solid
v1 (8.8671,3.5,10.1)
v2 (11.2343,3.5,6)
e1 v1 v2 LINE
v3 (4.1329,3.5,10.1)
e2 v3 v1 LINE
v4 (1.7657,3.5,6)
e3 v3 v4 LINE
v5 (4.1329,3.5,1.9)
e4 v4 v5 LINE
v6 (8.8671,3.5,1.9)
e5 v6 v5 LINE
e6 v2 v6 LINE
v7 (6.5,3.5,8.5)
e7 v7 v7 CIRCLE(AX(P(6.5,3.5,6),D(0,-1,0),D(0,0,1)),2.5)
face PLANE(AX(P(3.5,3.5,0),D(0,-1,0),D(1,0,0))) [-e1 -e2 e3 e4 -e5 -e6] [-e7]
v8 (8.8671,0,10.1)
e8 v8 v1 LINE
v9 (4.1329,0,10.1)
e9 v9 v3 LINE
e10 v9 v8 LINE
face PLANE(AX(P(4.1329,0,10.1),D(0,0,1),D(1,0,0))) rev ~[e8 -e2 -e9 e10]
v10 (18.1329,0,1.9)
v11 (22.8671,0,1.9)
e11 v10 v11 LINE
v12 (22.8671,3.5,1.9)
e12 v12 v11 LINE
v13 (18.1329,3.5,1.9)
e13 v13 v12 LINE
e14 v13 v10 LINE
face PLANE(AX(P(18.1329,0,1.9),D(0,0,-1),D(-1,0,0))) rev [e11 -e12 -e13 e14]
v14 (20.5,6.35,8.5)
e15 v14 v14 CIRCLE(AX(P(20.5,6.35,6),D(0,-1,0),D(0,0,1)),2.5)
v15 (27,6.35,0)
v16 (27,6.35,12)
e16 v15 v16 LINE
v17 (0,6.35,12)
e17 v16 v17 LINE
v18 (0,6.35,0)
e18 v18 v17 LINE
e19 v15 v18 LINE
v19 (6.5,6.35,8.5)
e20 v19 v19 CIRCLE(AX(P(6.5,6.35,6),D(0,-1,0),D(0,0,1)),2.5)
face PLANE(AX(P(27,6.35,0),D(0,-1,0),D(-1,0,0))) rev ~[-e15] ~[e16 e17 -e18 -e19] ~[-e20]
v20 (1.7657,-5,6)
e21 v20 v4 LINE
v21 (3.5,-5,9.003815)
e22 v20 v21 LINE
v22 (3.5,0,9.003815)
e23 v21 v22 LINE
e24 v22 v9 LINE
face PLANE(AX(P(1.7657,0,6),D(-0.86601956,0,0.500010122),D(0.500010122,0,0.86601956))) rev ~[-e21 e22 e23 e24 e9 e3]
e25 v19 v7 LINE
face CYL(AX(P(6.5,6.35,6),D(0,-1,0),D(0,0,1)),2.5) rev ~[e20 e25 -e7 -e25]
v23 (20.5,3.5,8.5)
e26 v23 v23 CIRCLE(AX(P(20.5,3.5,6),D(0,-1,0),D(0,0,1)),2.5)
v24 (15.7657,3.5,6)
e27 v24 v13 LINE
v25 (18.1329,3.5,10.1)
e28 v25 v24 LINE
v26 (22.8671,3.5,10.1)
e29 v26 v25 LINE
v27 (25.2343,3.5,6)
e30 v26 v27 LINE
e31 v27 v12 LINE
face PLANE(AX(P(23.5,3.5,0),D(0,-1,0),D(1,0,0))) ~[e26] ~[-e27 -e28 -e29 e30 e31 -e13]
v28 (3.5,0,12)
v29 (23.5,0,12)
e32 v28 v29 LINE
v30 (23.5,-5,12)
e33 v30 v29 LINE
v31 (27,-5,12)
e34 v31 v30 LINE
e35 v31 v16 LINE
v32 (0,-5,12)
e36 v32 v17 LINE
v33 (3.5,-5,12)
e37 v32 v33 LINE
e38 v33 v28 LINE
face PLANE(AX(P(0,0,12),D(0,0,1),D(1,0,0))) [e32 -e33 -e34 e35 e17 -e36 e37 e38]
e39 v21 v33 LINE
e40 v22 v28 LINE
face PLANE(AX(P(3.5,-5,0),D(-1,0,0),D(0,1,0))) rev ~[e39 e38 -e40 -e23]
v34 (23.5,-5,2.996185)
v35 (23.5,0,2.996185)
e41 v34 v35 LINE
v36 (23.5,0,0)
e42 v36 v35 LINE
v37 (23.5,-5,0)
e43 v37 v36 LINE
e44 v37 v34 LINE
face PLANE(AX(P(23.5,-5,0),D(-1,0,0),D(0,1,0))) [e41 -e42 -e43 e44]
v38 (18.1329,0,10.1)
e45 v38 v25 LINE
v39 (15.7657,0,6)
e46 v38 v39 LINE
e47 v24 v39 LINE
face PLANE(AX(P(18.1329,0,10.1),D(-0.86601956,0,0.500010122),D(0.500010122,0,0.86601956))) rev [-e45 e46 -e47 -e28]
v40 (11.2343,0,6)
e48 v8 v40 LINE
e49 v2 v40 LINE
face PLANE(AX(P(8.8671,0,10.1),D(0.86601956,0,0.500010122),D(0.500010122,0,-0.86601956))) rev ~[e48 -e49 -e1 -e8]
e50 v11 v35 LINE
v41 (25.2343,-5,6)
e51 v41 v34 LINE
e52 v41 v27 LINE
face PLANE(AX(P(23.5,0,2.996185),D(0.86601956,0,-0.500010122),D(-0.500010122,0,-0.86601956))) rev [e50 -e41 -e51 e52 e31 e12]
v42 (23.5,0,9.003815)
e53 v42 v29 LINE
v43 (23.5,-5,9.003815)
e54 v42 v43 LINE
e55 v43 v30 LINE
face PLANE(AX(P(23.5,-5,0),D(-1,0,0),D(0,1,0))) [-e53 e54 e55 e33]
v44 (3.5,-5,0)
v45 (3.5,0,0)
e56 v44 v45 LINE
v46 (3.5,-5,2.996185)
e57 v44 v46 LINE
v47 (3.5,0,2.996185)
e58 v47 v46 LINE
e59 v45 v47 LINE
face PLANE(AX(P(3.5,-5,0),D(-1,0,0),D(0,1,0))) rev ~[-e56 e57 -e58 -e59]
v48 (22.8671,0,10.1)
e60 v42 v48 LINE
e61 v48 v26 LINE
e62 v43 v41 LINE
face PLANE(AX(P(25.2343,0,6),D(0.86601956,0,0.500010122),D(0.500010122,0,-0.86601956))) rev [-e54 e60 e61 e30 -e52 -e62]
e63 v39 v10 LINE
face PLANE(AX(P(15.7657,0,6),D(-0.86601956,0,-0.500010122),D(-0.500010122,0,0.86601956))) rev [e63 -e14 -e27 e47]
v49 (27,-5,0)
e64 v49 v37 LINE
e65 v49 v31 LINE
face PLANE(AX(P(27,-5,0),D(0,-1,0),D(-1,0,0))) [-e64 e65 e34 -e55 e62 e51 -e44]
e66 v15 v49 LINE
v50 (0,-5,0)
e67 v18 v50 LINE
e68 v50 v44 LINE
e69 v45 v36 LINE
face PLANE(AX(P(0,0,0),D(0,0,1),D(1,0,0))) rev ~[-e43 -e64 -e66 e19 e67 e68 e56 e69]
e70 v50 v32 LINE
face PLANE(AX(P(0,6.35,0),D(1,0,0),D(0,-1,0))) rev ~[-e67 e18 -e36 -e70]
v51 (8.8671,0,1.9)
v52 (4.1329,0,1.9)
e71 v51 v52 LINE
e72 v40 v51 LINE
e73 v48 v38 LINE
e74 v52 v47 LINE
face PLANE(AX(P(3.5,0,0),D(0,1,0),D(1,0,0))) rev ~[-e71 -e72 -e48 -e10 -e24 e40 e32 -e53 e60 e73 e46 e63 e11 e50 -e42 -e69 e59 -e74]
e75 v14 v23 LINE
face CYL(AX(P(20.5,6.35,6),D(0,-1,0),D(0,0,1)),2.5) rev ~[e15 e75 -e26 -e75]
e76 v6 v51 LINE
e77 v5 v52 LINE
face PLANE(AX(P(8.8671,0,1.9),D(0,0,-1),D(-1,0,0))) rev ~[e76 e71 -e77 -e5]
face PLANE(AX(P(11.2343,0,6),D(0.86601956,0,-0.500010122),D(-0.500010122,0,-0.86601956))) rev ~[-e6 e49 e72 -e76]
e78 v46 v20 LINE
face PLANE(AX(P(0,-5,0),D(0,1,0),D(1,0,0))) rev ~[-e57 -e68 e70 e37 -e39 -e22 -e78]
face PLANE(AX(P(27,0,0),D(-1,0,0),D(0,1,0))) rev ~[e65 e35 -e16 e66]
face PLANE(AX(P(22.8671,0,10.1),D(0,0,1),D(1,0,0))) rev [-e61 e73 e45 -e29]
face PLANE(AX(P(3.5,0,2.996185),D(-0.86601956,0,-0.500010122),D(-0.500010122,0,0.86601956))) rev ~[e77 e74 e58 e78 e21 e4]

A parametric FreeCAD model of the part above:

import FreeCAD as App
import Part
import Sketcher
from FreeCAD import Vector
Q = App.Units.Quantity

doc = App.newDocument("Part")
body = doc.addObject("PartDesign::Body", "Body")

sketch1 = body.newObject("Sketcher::SketchObject", "Sketch")
sketch1.AttachmentSupport = (doc.getObject("XY_Plane"), [""])
sketch1.MapMode = "FlatFace"
sketch1.addGeometry([
    Part.LineSegment(Vector(0, 6.35, 0), Vector(0, -5, 0)),
    Part.LineSegment(Vector(0, -5, 0), Vector(3.5, -5, 0)),
    Part.LineSegment(Vector(3.5, -5, 0), Vector(3.5, 0, 0)),
    Part.LineSegment(Vector(3.5, 0, 0), Vector(23.5, 0, 0)),
    Part.LineSegment(Vector(23.5, 0, 0), Vector(23.5, -5, 0)),
    Part.LineSegment(Vector(23.5, -5, 0), Vector(27, -5, 0)),
    Part.LineSegment(Vector(27, -5, 0), Vector(27, 6.35, 0)),
    Part.LineSegment(Vector(27, 6.35, 0), Vector(0, 6.35, 0)),
], False)
sketch1.addConstraint([
    Sketcher.Constraint("Coincident", 0, 2, 1, 1),
    Sketcher.Constraint("Coincident", 1, 2, 2, 1),
    Sketcher.Constraint("Coincident", 2, 2, 3, 1),
    Sketcher.Constraint("Coincident", 3, 2, 4, 1),
    Sketcher.Constraint("Coincident", 4, 2, 5, 1),
    Sketcher.Constraint("Coincident", 5, 2, 6, 1),
    Sketcher.Constraint("Coincident", 6, 2, 7, 1),
    Sketcher.Constraint("Coincident", 7, 2, 0, 1),
    Sketcher.Constraint("Vertical", 0),
    Sketcher.Constraint("Horizontal", 1),
    Sketcher.Constraint("Vertical", 2),
    Sketcher.Constraint("Horizontal", 3),
    Sketcher.Constraint("Vertical", 4),
    Sketcher.Constraint("Horizontal", 5),
    Sketcher.Constraint("Vertical", 6),
    Sketcher.Constraint("Horizontal", 7),
    Sketcher.Constraint("PointOnObject", 0, 2, -2),
    Sketcher.Constraint("PointOnObject", 2, 2, -1),
    Sketcher.Constraint("Horizontal", 1, 2, 4, 2),
    Sketcher.Constraint("Equal", 1, 5),
    Sketcher.Constraint("DistanceX", 3, 1, 3, 2, Q("20 mm")),
    Sketcher.Constraint("DistanceX", 7, 2, 7, 1, Q("27 mm")),
    Sketcher.Constraint("DistanceY", 2, 1, 2, 2, Q("5 mm")),
    Sketcher.Constraint("DistanceY", -1, 1, 6, 2, Q("6.35 mm")),
])
pad1 = body.newObject("PartDesign::Pad", "Pad")
pad1.Profile = sketch1
pad1.Length = 12

sketch2 = body.newObject("Sketcher::SketchObject", "Sketch001")
sketch2.AttachmentSupport = (doc.getObject("XZ_Plane"), [""])
sketch2.MapMode = "FlatFace"
sketch2.AttachmentOffset = App.Placement(Vector(0, 0, -6.35), App.Rotation())
sketch2.addGeometry([
    Part.Circle(Vector(6.5, 6, 0), Vector(0, 0, 1), 2.5),
    Part.Circle(Vector(20.5, 6, 0), Vector(0, 0, 1), 2.5),
], False)
sketch2.addConstraint([
    Sketcher.Constraint("Equal", 0, 1),
    Sketcher.Constraint("Horizontal", 0, 3, 1, 3),
    Sketcher.Constraint("Diameter", 0, Q("5 mm")),
    Sketcher.Constraint("DistanceY", -1, 1, 0, 3, Q("6 mm")),
    Sketcher.Constraint("DistanceX", 0, 3, 1, 3, Q("14 mm")),
    Sketcher.Constraint("DistanceX", -1, 1, 0, 3, Q("6.5 mm")),
])
doc.recompute()
hole = body.newObject("PartDesign::Hole", "Hole")
hole.Profile = sketch2
hole.ThreadType = "None"
hole.Diameter = 5
hole.DepthType = "ThroughAll"
hole.Reversed = True

sketch3 = body.newObject("Sketcher::SketchObject", "Sketch002")
sketch3.AttachmentSupport = (doc.getObject("XZ_Plane"), [""])
sketch3.MapMode = "FlatFace"
sketch3.addGeometry([
    Part.LineSegment(Vector(1.7657, 6, 0), Vector(4.1329, 1.9, 0)),
    Part.LineSegment(Vector(4.1329, 1.9, 0), Vector(8.8671, 1.9, 0)),
    Part.LineSegment(Vector(8.8671, 1.9, 0), Vector(11.2343, 6, 0)),
    Part.LineSegment(Vector(11.2343, 6, 0), Vector(8.8671, 10.1, 0)),
    Part.LineSegment(Vector(8.8671, 10.1, 0), Vector(4.1329, 10.1, 0)),
    Part.LineSegment(Vector(4.1329, 10.1, 0), Vector(1.7657, 6, 0)),
    Part.Circle(Vector(6.5, 6, 0), Vector(0, 0, 1), 2.5),
], False)
sketch3.addConstraint([
    Sketcher.Constraint("Coincident", 0, 2, 1, 1),
    Sketcher.Constraint("Coincident", 1, 2, 2, 1),
    Sketcher.Constraint("Coincident", 2, 2, 3, 1),
    Sketcher.Constraint("Coincident", 3, 2, 4, 1),
    Sketcher.Constraint("Coincident", 4, 2, 5, 1),
    Sketcher.Constraint("Coincident", 5, 2, 0, 1),
    Sketcher.Constraint("Horizontal", 1),
    Sketcher.Constraint("Horizontal", 4),
    Sketcher.Constraint("Parallel", 0, 3),
    Sketcher.Constraint("Parallel", 2, 5),
    Sketcher.Constraint("Horizontal", 6, 3, 2, 2),
    Sketcher.Constraint("Horizontal", 2, 2, 5, 2),
    Sketcher.Constraint("Vertical", 1, 2, 3, 2),
    Sketcher.Constraint("Vertical", 0, 2, 4, 2),
    Sketcher.Constraint("Diameter", 6, Q("5 mm")),
    Sketcher.Constraint("DistanceY", 1, 2, 3, 2, Q("8.2 mm")),
    Sketcher.Constraint("Angle", 0, Q("-59.9993 deg")),
    Sketcher.Constraint("DistanceY", -1, 1, 6, 3, Q("6 mm")),
    Sketcher.Constraint("DistanceX", -1, 1, 6, 3, Q("6.5 mm")),
    Sketcher.Constraint("DistanceX", 1, 1, 1, 2, Q("4.7342 mm")),
    Sketcher.Constraint("DistanceX", -1, 1, 0, 2, Q("4.133 mm")),
])
pocket1 = body.newObject("PartDesign::Pocket", "Pocket")
pocket1.Profile = sketch3
pocket1.Type = "TwoLengths"
pocket1.Length = 6.75
pocket1.Length2 = 3.5
pocket1.Reversed = True
doc.recompute()

datumplane = body.newObject("PartDesign::Plane", "DatumPlane")
datumplane.AttachmentSupport = (doc.getObject("YZ_Plane"), [""])
datumplane.MapMode = "FlatFace"
datumplane.AttachmentOffset = App.Placement(Vector(0, 0, 13.5), App.Rotation())
mirrored = body.newObject("PartDesign::Mirrored", "Mirrored")
mirrored.Originals = [pocket1]
mirrored.MirrorPlane = (datumplane, [""])
body.Tip = mirrored

doc.recompute()
